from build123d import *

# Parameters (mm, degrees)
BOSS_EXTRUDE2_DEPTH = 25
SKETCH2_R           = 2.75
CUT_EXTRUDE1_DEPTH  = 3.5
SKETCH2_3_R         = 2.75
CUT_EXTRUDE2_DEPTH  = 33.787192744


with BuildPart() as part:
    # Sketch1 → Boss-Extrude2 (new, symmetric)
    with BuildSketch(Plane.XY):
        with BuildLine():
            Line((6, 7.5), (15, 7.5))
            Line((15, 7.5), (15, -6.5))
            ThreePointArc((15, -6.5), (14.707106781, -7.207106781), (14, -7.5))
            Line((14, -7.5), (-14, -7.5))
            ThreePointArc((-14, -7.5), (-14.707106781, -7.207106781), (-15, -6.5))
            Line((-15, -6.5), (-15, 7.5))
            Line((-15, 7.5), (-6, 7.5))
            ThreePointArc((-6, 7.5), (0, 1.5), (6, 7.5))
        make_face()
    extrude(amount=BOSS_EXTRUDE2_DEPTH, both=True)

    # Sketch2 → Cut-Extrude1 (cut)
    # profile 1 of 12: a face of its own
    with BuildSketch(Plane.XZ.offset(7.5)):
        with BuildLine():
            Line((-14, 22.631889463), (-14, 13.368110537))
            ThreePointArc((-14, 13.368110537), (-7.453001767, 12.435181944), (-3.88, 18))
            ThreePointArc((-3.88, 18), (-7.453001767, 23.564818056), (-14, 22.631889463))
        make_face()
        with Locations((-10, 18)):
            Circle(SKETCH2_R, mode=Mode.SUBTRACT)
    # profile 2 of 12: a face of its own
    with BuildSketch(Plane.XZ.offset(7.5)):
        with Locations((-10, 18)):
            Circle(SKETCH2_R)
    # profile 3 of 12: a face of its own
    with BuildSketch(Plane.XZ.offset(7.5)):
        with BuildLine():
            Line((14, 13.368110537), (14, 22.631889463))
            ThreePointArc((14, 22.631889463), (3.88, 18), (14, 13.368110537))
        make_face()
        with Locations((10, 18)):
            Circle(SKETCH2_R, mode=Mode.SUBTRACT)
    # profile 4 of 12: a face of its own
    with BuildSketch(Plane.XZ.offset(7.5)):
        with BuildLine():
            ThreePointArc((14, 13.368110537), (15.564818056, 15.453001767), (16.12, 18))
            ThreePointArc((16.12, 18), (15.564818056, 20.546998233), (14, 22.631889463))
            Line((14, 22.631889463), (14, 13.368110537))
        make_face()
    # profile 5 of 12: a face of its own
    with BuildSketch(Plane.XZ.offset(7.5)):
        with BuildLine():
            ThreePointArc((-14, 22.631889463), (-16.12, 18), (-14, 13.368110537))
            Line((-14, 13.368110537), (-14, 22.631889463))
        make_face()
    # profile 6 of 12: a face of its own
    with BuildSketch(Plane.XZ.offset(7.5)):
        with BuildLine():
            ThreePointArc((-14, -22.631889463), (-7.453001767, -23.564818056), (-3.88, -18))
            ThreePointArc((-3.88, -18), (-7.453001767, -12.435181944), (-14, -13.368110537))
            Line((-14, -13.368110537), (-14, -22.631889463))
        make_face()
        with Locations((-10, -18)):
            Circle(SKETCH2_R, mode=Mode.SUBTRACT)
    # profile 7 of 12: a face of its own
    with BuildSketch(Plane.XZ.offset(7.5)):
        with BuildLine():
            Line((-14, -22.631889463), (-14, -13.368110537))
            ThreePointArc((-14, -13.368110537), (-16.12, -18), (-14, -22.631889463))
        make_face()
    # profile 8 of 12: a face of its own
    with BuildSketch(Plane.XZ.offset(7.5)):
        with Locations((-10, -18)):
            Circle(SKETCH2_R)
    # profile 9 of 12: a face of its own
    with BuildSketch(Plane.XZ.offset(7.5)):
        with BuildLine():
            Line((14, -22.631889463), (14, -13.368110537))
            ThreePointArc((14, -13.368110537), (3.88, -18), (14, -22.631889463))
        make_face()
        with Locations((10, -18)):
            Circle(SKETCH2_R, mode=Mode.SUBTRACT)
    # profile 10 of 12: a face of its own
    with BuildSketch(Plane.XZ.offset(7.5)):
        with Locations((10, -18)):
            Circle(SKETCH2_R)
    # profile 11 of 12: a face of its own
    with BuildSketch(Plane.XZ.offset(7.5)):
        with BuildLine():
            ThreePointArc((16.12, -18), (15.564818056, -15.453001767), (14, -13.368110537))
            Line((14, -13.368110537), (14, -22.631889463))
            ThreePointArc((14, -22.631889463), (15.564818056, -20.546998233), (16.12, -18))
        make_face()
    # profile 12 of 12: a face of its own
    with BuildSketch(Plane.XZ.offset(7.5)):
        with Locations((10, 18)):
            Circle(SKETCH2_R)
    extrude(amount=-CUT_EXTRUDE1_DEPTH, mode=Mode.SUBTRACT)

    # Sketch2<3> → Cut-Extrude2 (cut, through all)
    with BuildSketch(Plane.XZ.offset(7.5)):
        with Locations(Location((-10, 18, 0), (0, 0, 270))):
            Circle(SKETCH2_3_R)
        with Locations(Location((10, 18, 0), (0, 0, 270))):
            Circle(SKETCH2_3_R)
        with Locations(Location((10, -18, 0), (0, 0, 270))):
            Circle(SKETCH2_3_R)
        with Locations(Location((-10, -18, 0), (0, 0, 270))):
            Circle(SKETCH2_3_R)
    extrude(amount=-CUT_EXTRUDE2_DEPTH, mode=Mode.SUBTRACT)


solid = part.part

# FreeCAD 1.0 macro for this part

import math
import FreeCAD as App
import Part
import Sketcher

V = App.Vector

doc = App.newDocument("Part")
body = doc.addObject("PartDesign::Body", "Body")

sketch1 = body.newObject("Sketcher::SketchObject", "Sketch")
sketch1.AttachmentSupport = (doc.getObject("XY_Plane"), [""])
sketch1.MapMode = "FlatFace"
sketch1.addGeometry([
    Part.LineSegment(V(15, 7.5, 0), V(6, 7.5, 0)),
    Part.ArcOfCircle(Part.Circle(V(0, 7.5, 0), V(0, 0, 1), 6), math.radians(180), math.radians(360)),
    Part.LineSegment(V(-6, 7.5, 0), V(-15, 7.5, 0)),
    Part.LineSegment(V(-15, 7.5, 0), V(-15, -6.5, 0)),
    Part.ArcOfCircle(Part.Circle(V(-14, -6.5, 0), V(0, 0, 1), 1), math.radians(-180), math.radians(-90)),
    Part.LineSegment(V(-14, -7.5, 0), V(14, -7.5, 0)),
    Part.ArcOfCircle(Part.Circle(V(14, -6.5, 0), V(0, 0, 1), 1), math.radians(-90), math.radians(0)),
    Part.LineSegment(V(15, -6.5, 0), V(15, 7.5, 0)),
], False)
sketch1.addConstraint([
    Sketcher.Constraint("Coincident", 0, 2, 1, 2),
    Sketcher.Constraint("Coincident", 1, 1, 2, 1),
    Sketcher.Constraint("Coincident", 2, 2, 3, 1),
    Sketcher.Constraint("Tangent", 3, 2, 4, 1),
    Sketcher.Constraint("Tangent", 4, 2, 5, 1),
    Sketcher.Constraint("Tangent", 5, 2, 6, 1),
    Sketcher.Constraint("Tangent", 6, 2, 7, 1),
    Sketcher.Constraint("Coincident", 7, 2, 0, 1),
    Sketcher.Constraint("Horizontal", 0),
    Sketcher.Constraint("Horizontal", 2),
    Sketcher.Constraint("Vertical", 3),
    Sketcher.Constraint("Horizontal", 5),
    Sketcher.Constraint("Vertical", 7),
    Sketcher.Constraint("Equal", 4, 6),
    Sketcher.Constraint("Symmetric", 0, 2, 1, 1, -2),
    Sketcher.Constraint("Horizontal", 1, 3, 0, 2),
    Sketcher.Constraint("Equal", 0, 2),
    Sketcher.Constraint("Radius", 1, 6.0),
    Sketcher.Constraint("Radius", 4, 1.0),
    Sketcher.Constraint("DistanceX", 0, 2, 0, 1, 9.0),
    Sketcher.Constraint("DistanceY", 3, 2, 3, 1, 14.0),
    Sketcher.Constraint("DistanceY", -1, 1, 1, 3, 7.5),
])
pad1 = body.newObject("PartDesign::Pad", "Pad")
pad1.Profile = sketch1
pad1.Length = 50
pad1.Midplane = True

sketch2 = body.newObject("Sketcher::SketchObject", "Sketch001")
sketch2.AttachmentSupport = (doc.getObject("XZ_Plane"), [""])
sketch2.MapMode = "FlatFace"
sketch2.AttachmentOffset = App.Placement(V(0, 0, 7.5), App.Rotation())
sketch2.addGeometry([
    Part.ArcOfCircle(Part.Circle(V(-10, 18, 0), V(0, 0, 1), 6), math.radians(0), math.radians(131)),
    Part.ArcOfCircle(Part.Circle(V(-10, 18, 0), V(0, 0, 1), 6), math.radians(131), math.radians(229)),
    Part.ArcOfCircle(Part.Circle(V(-10, 18, 0), V(0, 0, 1), 6), math.radians(-131), math.radians(0)),
    Part.ArcOfCircle(Part.Circle(V(10, 18, 0), V(0, 0, 1), 6), math.radians(49), math.radians(311)),
    Part.ArcOfCircle(Part.Circle(V(10, 18, 0), V(0, 0, 1), 6), math.radians(-49), math.radians(0)),
    Part.ArcOfCircle(Part.Circle(V(10, 18, 0), V(0, 0, 1), 6), math.radians(0), math.radians(49)),
    Part.ArcOfCircle(Part.Circle(V(-10, -18, 0), V(0, 0, 1), 6), math.radians(-131), math.radians(0)),
    Part.ArcOfCircle(Part.Circle(V(-10, -18, 0), V(0, 0, 1), 6), math.radians(0), math.radians(131)),
    Part.ArcOfCircle(Part.Circle(V(-10, -18, 0), V(0, 0, 1), 6), math.radians(131), math.radians(229)),
    Part.ArcOfCircle(Part.Circle(V(10, -18, 0), V(0, 0, 1), 6), math.radians(49), math.radians(311)),
    Part.ArcOfCircle(Part.Circle(V(10, -18, 0), V(0, 0, 1), 6), math.radians(-49), math.radians(0)),
    Part.ArcOfCircle(Part.Circle(V(10, -18, 0), V(0, 0, 1), 6), math.radians(0), math.radians(49)),
], False)
sketch2.addConstraint([
    Sketcher.Constraint("Tangent", 0, 2, 1, 1),
    Sketcher.Constraint("Tangent", 1, 2, 2, 1),
    Sketcher.Constraint("Tangent", 2, 2, 0, 1),
    Sketcher.Constraint("Tangent", 3, 2, 4, 1),
    Sketcher.Constraint("Tangent", 4, 2, 5, 1),
    Sketcher.Constraint("Tangent", 5, 2, 3, 1),
    Sketcher.Constraint("Tangent", 6, 2, 7, 1),
    Sketcher.Constraint("Tangent", 7, 2, 8, 1),
    Sketcher.Constraint("Tangent", 8, 2, 6, 1),
    Sketcher.Constraint("Tangent", 9, 2, 10, 1),
    Sketcher.Constraint("Tangent", 10, 2, 11, 1),
    Sketcher.Constraint("Tangent", 11, 2, 9, 1),
    Sketcher.Constraint("Equal", 2, 3),
    Sketcher.Constraint("Equal", 5, 6),
    Sketcher.Constraint("Equal", 8, 9),
    Sketcher.Constraint("Symmetric", 3, 3, 6, 3, -1, 1),
    Sketcher.Constraint("Symmetric", 0, 3, 9, 3, -1, 1),
    Sketcher.Constraint("Symmetric", 0, 3, 3, 3, -2),
    Sketcher.Constraint("Horizontal", 5, 3, 2, 2),
    Sketcher.Constraint("Horizontal", 1, 2, 3, 2),
    Sketcher.Constraint("Horizontal", 2, 2, 4, 2),
    Sketcher.Constraint("Horizontal", 0, 2, 5, 2),
    Sketcher.Constraint("Horizontal", 11, 3, 6, 2),
    Sketcher.Constraint("Horizontal", 8, 2, 9, 2),
    Sketcher.Constraint("Horizontal", 6, 2, 10, 2),
    Sketcher.Constraint("Horizontal", 7, 2, 11, 2),
    Sketcher.Constraint("Vertical", 0, 2, 1, 2),
    Sketcher.Constraint("Vertical", 1, 2, 7, 2),
    Sketcher.Constraint("Vertical", 7, 2, 8, 2),
    Sketcher.Constraint("Radius", 0, 6.12),
    Sketcher.Constraint("DistanceX", 0, 3, -1, 1, 10.0),
    Sketcher.Constraint("DistanceY", -1, 1, 0, 3, 18.0),
    Sketcher.Constraint("DistanceX", 0, 2, -1, 1, 14.0),
])
pocket1 = body.newObject("PartDesign::Pocket", "Pocket")
pocket1.Profile = sketch2
pocket1.Length = 3.5

sketch3 = body.newObject("Sketcher::SketchObject", "Sketch002")
sketch3.AttachmentSupport = (doc.getObject("XZ_Plane"), [""])
sketch3.MapMode = "FlatFace"
sketch3.AttachmentOffset = App.Placement(V(0, 0, 7.5), App.Rotation())
sketch3.addGeometry([
    Part.Circle(V(-10, 18, 0), V(0, 0, 1), 2.8),
    Part.Circle(V(10, 18, 0), V(0, 0, 1), 2.8),
    Part.Circle(V(10, -18, 0), V(0, 0, 1), 2.8),
    Part.Circle(V(-10, -18, 0), V(0, 0, 1), 2.8),
], False)
sketch3.addConstraint([
    Sketcher.Constraint("Equal", 0, 1),
    Sketcher.Constraint("Equal", 1, 2),
    Sketcher.Constraint("Equal", 2, 3),
    Sketcher.Constraint("Symmetric", 0, 3, 2, 3, -1, 1),
    Sketcher.Constraint("Symmetric", 1, 3, 3, 3, -1, 1),
    Sketcher.Constraint("Symmetric", 0, 3, 1, 3, -2),
    Sketcher.Constraint("Diameter", 0, 5.5),
    Sketcher.Constraint("DistanceX", 0, 3, -1, 1, 10.0),
    Sketcher.Constraint("DistanceY", -1, 1, 0, 3, 18.0),
])
pocket2 = body.newObject("PartDesign::Pocket", "Pocket001")
pocket2.Profile = sketch3
pocket2.Type = "ThroughAll"

doc.recompute()
